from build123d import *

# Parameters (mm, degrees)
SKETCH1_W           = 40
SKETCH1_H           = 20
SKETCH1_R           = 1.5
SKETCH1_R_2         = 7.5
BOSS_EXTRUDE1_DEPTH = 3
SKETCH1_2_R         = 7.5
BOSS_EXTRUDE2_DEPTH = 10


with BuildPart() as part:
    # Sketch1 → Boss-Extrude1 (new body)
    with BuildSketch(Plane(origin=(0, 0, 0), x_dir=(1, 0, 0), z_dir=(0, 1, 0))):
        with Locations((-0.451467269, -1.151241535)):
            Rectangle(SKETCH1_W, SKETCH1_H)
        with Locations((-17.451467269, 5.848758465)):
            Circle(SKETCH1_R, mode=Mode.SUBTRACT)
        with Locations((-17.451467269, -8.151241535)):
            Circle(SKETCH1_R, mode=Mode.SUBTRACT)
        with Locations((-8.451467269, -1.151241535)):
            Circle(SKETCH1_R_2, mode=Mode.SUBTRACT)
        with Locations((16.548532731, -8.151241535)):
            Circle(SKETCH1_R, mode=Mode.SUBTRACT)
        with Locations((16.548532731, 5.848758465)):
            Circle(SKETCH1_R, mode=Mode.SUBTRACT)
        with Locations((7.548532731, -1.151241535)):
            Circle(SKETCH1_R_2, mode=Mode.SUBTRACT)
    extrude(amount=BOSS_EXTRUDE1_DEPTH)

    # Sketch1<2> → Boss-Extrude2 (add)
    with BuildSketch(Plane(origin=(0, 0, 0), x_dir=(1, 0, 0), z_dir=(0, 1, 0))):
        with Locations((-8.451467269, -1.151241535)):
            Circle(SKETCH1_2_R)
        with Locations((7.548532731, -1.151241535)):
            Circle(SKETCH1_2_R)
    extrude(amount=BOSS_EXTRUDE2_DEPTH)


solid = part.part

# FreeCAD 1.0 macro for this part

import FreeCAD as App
import Part
import Sketcher
Q = App.Units.Quantity

doc = App.newDocument("Part")
body = doc.addObject("PartDesign::Body", "Body")

# Sketch on XZ plane
sketch1 = doc.addObject("Sketcher::SketchObject", "Sketch")
body.addObject(sketch1)
sketch1.AttachmentSupport = (doc.XZ_Plane, [""])
sketch1.MapMode = "FlatFace"
sketch1.addGeometry([
    Part.LineSegment(App.Vector(-20.5, -8.8, 0), App.Vector(-20.5, 11.2, 0)),  # 0
    Part.LineSegment(App.Vector(-20.5, 11.2, 0), App.Vector(19.5, 11.2, 0)),  # 1
    Part.LineSegment(App.Vector(19.5, 11.2, 0), App.Vector(19.5, -8.8, 0)),  # 2
    Part.LineSegment(App.Vector(19.5, -8.8, 0), App.Vector(-20.5, -8.8, 0)),  # 3
    Part.Circle(App.Vector(-17.5, 8.2, 0), App.Vector(0, 0, 1), 1.5),  # 4
    Part.Circle(App.Vector(16.5, 8.2, 0), App.Vector(0, 0, 1), 1.5),  # 5
    Part.Circle(App.Vector(-8.5, 1.2, 0), App.Vector(0, 0, 1), 7.5),  # 6
    Part.Circle(App.Vector(-17.5, -5.8, 0), App.Vector(0, 0, 1), 1.5),  # 7
    Part.Circle(App.Vector(7.5, 1.2, 0), App.Vector(0, 0, 1), 7.5),  # 8
    Part.Circle(App.Vector(16.5, -5.8, 0), App.Vector(0, 0, 1), 1.5),  # 9
], False)
sketch1.addConstraint([
    Sketcher.Constraint("Coincident", 0, 2, 1, 1),
    Sketcher.Constraint("Coincident", 1, 2, 2, 1),
    Sketcher.Constraint("Coincident", 2, 2, 3, 1),
    Sketcher.Constraint("Coincident", 3, 2, 0, 1),
    Sketcher.Constraint("Vertical", 0),
    Sketcher.Constraint("Horizontal", 1),
    Sketcher.Constraint("Vertical", 2),
    Sketcher.Constraint("Horizontal", 3),
    Sketcher.Constraint("Equal", 4, 5),
    Sketcher.Constraint("Equal", 5, 7),
    Sketcher.Constraint("Equal", 6, 8),
    Sketcher.Constraint("Equal", 7, 9),
    Sketcher.Constraint("Horizontal", 4, 3, 5, 3),
    Sketcher.Constraint("Horizontal", 6, 3, 8, 3),
    Sketcher.Constraint("Horizontal", 7, 3, 9, 3),
    Sketcher.Constraint("Vertical", 4, 3, 7, 3),
    Sketcher.Constraint("Vertical", 5, 3, 9, 3),
    Sketcher.Constraint("Diameter", 4, Q("3 mm")),
    Sketcher.Constraint("Diameter", 6, Q("15 mm")),
    Sketcher.Constraint("DistanceX", 1, 1, 1, 2, Q("40 mm")),
    Sketcher.Constraint("DistanceY", 0, 1, 0, 2, Q("20 mm")),
    Sketcher.Constraint("DistanceX", 4, 3, 5, 3, Q("34 mm")),
    Sketcher.Constraint("DistanceX", 4, 3, 6, 3, Q("9 mm")),
    Sketcher.Constraint("DistanceY", 6, 3, 4, 3, Q("7 mm")),
    Sketcher.Constraint("DistanceY", 7, 3, 6, 3, Q("7 mm")),
    Sketcher.Constraint("DistanceX", 8, 3, 5, 3, Q("9 mm")),
    Sketcher.Constraint("DistanceX", 0, 2, 4, 3, Q("3 mm")),
    Sketcher.Constraint("DistanceY", 4, 3, 0, 2, Q("3 mm")),
    Sketcher.Constraint("DistanceY", -1, 1, 4, 3, Q("8.151242 mm")),
    Sketcher.Constraint("DistanceX", 4, 3, -1, 1, Q("17.451467 mm")),
])
pad1 = doc.addObject("PartDesign::Pad", "Pad")
body.addObject(pad1)
pad1.Profile = sketch1
pad1.Length = 3
pad1.Reversed = True

# Sketch on XZ plane
sketch2 = doc.addObject("Sketcher::SketchObject", "Sketch001")
body.addObject(sketch2)
sketch2.AttachmentSupport = (doc.XZ_Plane, [""])
sketch2.MapMode = "FlatFace"
sketch2.addGeometry([
    Part.Circle(App.Vector(-8, 1, 0), App.Vector(0, 0, 1), 8),
    Part.Circle(App.Vector(8, 1, 0), App.Vector(0, 0, 1), 8),
], False)
sketch2.addConstraint([
    Sketcher.Constraint("Equal", 0, 1),
    Sketcher.Constraint("Horizontal", 0, 3, 1, 3),
    Sketcher.Constraint("Diameter", 0, Q("15 mm")),
    Sketcher.Constraint("DistanceX", 0, 3, 1, 3, Q("16 mm")),
    Sketcher.Constraint("DistanceY", -1, 1, 0, 3, Q("1.151242 mm")),
    Sketcher.Constraint("DistanceX", 0, 3, -1, 1, Q("8.451467 mm")),
])
pad2 = doc.addObject("PartDesign::Pad", "Pad001")
body.addObject(pad2)
pad2.Profile = sketch2
pad2.Length = 10
pad2.Reversed = True

doc.recompute()
